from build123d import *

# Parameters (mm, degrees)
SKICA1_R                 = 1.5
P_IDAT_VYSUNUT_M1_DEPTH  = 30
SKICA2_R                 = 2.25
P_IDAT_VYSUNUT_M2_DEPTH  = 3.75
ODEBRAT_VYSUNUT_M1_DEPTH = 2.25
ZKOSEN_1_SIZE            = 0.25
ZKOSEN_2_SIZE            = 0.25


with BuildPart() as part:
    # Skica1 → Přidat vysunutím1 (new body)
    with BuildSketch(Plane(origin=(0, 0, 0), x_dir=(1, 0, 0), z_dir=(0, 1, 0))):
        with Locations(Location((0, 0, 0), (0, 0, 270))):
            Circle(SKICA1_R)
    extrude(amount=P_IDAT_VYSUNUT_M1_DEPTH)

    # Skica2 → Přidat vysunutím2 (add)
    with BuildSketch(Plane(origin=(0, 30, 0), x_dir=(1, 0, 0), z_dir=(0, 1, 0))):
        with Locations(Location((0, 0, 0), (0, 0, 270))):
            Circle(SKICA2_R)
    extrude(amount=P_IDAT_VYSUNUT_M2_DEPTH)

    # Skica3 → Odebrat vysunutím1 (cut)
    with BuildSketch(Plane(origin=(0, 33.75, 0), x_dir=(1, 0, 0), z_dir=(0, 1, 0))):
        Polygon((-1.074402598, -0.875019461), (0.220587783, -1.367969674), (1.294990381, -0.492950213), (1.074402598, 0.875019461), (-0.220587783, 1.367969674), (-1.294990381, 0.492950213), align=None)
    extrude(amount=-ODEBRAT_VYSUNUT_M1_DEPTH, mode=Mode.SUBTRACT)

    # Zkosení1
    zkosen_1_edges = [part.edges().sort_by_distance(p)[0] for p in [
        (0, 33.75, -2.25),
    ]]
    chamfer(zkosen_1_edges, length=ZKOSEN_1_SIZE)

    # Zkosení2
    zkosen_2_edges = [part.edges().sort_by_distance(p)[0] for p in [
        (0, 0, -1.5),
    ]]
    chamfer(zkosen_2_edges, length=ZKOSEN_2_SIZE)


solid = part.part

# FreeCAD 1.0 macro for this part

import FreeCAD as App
import Part
import Sketcher


def edges_at(feature, points):
    """Names of the edges that pass closest to the given points."""
    edges = feature.Shape.Edges
    near = lambda p: min(range(len(edges)), key=lambda i: edges[i].distToShape(Part.Vertex(*p))[0])
    return sorted({f"Edge{near(p) + 1}" for p in points})


def add_polygon(sketch, points):
    """Adds a closed chain of lines whose ends are joined by coincident constraints."""
    first, n = sketch.GeometryCount, len(points)
    for a, b in zip(points, points[1:] + points[:1]):
        sketch.addGeometry(Part.LineSegment(App.Vector(*a, 0), App.Vector(*b, 0)), False)
    for i in range(n):
        sketch.addConstraint(Sketcher.Constraint("Coincident", first + i, 2, first + (i + 1) % n, 1))

doc = App.newDocument("Part")
body = doc.addObject("PartDesign::Body", "Body")

# Sketch on XZ plane
sketch1 = doc.addObject("Sketcher::SketchObject", "Sketch")
body.addObject(sketch1)
sketch1.AttachmentSupport = (doc.XZ_Plane, [""])
sketch1.MapMode = "FlatFace"
sketch1.addGeometry(Part.Circle(App.Vector(0, 0, 0), App.Vector(0, 0, 1), 1.5), False)
sketch1.addConstraint(Sketcher.Constraint("Coincident", 0, 3, -1, 1))
sketch1.addConstraint(Sketcher.Constraint("Diameter", 0, 3.0))
pad1 = doc.addObject("PartDesign::Pad", "Pad")
body.addObject(pad1)
pad1.Profile = sketch1
pad1.Length = 30
pad1.Reversed = True

# Sketch on XZ plane
sketch2 = doc.addObject("Sketcher::SketchObject", "Sketch001")
body.addObject(sketch2)
sketch2.AttachmentSupport = (doc.XZ_Plane, [""])
sketch2.MapMode = "FlatFace"
sketch2.AttachmentOffset = App.Placement(App.Vector(0, 0, -30), App.Rotation())
sketch2.addGeometry(Part.Circle(App.Vector(0, 0, 0), App.Vector(0, 0, 1), 2.25), False)
sketch2.addConstraint(Sketcher.Constraint("Coincident", 0, 3, -1, 1))
sketch2.addConstraint(Sketcher.Constraint("Diameter", 0, 4.5))
pad2 = doc.addObject("PartDesign::Pad", "Pad001")
body.addObject(pad2)
pad2.Profile = sketch2
pad2.Length = 3.75
pad2.Reversed = True

# Sketch on XZ plane
sketch3 = doc.addObject("Sketcher::SketchObject", "Sketch002")
body.addObject(sketch3)
sketch3.AttachmentSupport = (doc.XZ_Plane, [""])
sketch3.MapMode = "FlatFace"
sketch3.AttachmentOffset = App.Placement(App.Vector(0, 0, -33.75), App.Rotation())
add_polygon(sketch3, [(-1.074403, 0.875019), (0.220588, 1.36797), (1.29499, 0.49295), (1.074403, -0.875019), (-0.220588, -1.36797), (-1.29499, -0.49295)])  # lines 0-5
sketch3.addConstraint(Sketcher.Constraint("Symmetric", 0, 2, 3, 2, -1, 1))
sketch3.addConstraint(Sketcher.Constraint("Symmetric", 1, 2, 4, 2, -1, 1))
sketch3.addConstraint(Sketcher.Constraint("Symmetric", 2, 2, 5, 2, -1, 1))
sketch3.addConstraint(Sketcher.Constraint("Equal", 0, 1))
sketch3.addConstraint(Sketcher.Constraint("Equal", 1, 2))
sketch3.addConstraint(Sketcher.Constraint("DistanceY", 4, 2, 1, 2, 0.9859))
sketch3.addConstraint(Sketcher.Constraint("Distance", 0, 1.385641))
sketch3.addConstraint(Sketcher.Constraint("DistanceY", -1, 1, 0, 2, 1.36797))
sketch3.addConstraint(Sketcher.Constraint("DistanceX", -1, 1, 1, 2, 1.29499))
pocket1 = doc.addObject("PartDesign::Pocket", "Pocket")
body.addObject(pocket1)
pocket1.Profile = sketch3
pocket1.Length = 2.25
pocket1.Reversed = True
doc.recompute()

chamfer = doc.addObject("PartDesign::Chamfer", "Chamfer")
body.addObject(chamfer)
chamfer.Base = (pocket1, edges_at(pocket1, [(0, 33.75, -2.25)]))
chamfer.Size = 0.25
doc.recompute()

chamfer2 = doc.addObject("PartDesign::Chamfer", "Chamfer001")
body.addObject(chamfer2)
chamfer2.Base = (chamfer, edges_at(chamfer, [(0, 0, -1.5)]))
chamfer2.Size = 0.25

doc.recompute()
